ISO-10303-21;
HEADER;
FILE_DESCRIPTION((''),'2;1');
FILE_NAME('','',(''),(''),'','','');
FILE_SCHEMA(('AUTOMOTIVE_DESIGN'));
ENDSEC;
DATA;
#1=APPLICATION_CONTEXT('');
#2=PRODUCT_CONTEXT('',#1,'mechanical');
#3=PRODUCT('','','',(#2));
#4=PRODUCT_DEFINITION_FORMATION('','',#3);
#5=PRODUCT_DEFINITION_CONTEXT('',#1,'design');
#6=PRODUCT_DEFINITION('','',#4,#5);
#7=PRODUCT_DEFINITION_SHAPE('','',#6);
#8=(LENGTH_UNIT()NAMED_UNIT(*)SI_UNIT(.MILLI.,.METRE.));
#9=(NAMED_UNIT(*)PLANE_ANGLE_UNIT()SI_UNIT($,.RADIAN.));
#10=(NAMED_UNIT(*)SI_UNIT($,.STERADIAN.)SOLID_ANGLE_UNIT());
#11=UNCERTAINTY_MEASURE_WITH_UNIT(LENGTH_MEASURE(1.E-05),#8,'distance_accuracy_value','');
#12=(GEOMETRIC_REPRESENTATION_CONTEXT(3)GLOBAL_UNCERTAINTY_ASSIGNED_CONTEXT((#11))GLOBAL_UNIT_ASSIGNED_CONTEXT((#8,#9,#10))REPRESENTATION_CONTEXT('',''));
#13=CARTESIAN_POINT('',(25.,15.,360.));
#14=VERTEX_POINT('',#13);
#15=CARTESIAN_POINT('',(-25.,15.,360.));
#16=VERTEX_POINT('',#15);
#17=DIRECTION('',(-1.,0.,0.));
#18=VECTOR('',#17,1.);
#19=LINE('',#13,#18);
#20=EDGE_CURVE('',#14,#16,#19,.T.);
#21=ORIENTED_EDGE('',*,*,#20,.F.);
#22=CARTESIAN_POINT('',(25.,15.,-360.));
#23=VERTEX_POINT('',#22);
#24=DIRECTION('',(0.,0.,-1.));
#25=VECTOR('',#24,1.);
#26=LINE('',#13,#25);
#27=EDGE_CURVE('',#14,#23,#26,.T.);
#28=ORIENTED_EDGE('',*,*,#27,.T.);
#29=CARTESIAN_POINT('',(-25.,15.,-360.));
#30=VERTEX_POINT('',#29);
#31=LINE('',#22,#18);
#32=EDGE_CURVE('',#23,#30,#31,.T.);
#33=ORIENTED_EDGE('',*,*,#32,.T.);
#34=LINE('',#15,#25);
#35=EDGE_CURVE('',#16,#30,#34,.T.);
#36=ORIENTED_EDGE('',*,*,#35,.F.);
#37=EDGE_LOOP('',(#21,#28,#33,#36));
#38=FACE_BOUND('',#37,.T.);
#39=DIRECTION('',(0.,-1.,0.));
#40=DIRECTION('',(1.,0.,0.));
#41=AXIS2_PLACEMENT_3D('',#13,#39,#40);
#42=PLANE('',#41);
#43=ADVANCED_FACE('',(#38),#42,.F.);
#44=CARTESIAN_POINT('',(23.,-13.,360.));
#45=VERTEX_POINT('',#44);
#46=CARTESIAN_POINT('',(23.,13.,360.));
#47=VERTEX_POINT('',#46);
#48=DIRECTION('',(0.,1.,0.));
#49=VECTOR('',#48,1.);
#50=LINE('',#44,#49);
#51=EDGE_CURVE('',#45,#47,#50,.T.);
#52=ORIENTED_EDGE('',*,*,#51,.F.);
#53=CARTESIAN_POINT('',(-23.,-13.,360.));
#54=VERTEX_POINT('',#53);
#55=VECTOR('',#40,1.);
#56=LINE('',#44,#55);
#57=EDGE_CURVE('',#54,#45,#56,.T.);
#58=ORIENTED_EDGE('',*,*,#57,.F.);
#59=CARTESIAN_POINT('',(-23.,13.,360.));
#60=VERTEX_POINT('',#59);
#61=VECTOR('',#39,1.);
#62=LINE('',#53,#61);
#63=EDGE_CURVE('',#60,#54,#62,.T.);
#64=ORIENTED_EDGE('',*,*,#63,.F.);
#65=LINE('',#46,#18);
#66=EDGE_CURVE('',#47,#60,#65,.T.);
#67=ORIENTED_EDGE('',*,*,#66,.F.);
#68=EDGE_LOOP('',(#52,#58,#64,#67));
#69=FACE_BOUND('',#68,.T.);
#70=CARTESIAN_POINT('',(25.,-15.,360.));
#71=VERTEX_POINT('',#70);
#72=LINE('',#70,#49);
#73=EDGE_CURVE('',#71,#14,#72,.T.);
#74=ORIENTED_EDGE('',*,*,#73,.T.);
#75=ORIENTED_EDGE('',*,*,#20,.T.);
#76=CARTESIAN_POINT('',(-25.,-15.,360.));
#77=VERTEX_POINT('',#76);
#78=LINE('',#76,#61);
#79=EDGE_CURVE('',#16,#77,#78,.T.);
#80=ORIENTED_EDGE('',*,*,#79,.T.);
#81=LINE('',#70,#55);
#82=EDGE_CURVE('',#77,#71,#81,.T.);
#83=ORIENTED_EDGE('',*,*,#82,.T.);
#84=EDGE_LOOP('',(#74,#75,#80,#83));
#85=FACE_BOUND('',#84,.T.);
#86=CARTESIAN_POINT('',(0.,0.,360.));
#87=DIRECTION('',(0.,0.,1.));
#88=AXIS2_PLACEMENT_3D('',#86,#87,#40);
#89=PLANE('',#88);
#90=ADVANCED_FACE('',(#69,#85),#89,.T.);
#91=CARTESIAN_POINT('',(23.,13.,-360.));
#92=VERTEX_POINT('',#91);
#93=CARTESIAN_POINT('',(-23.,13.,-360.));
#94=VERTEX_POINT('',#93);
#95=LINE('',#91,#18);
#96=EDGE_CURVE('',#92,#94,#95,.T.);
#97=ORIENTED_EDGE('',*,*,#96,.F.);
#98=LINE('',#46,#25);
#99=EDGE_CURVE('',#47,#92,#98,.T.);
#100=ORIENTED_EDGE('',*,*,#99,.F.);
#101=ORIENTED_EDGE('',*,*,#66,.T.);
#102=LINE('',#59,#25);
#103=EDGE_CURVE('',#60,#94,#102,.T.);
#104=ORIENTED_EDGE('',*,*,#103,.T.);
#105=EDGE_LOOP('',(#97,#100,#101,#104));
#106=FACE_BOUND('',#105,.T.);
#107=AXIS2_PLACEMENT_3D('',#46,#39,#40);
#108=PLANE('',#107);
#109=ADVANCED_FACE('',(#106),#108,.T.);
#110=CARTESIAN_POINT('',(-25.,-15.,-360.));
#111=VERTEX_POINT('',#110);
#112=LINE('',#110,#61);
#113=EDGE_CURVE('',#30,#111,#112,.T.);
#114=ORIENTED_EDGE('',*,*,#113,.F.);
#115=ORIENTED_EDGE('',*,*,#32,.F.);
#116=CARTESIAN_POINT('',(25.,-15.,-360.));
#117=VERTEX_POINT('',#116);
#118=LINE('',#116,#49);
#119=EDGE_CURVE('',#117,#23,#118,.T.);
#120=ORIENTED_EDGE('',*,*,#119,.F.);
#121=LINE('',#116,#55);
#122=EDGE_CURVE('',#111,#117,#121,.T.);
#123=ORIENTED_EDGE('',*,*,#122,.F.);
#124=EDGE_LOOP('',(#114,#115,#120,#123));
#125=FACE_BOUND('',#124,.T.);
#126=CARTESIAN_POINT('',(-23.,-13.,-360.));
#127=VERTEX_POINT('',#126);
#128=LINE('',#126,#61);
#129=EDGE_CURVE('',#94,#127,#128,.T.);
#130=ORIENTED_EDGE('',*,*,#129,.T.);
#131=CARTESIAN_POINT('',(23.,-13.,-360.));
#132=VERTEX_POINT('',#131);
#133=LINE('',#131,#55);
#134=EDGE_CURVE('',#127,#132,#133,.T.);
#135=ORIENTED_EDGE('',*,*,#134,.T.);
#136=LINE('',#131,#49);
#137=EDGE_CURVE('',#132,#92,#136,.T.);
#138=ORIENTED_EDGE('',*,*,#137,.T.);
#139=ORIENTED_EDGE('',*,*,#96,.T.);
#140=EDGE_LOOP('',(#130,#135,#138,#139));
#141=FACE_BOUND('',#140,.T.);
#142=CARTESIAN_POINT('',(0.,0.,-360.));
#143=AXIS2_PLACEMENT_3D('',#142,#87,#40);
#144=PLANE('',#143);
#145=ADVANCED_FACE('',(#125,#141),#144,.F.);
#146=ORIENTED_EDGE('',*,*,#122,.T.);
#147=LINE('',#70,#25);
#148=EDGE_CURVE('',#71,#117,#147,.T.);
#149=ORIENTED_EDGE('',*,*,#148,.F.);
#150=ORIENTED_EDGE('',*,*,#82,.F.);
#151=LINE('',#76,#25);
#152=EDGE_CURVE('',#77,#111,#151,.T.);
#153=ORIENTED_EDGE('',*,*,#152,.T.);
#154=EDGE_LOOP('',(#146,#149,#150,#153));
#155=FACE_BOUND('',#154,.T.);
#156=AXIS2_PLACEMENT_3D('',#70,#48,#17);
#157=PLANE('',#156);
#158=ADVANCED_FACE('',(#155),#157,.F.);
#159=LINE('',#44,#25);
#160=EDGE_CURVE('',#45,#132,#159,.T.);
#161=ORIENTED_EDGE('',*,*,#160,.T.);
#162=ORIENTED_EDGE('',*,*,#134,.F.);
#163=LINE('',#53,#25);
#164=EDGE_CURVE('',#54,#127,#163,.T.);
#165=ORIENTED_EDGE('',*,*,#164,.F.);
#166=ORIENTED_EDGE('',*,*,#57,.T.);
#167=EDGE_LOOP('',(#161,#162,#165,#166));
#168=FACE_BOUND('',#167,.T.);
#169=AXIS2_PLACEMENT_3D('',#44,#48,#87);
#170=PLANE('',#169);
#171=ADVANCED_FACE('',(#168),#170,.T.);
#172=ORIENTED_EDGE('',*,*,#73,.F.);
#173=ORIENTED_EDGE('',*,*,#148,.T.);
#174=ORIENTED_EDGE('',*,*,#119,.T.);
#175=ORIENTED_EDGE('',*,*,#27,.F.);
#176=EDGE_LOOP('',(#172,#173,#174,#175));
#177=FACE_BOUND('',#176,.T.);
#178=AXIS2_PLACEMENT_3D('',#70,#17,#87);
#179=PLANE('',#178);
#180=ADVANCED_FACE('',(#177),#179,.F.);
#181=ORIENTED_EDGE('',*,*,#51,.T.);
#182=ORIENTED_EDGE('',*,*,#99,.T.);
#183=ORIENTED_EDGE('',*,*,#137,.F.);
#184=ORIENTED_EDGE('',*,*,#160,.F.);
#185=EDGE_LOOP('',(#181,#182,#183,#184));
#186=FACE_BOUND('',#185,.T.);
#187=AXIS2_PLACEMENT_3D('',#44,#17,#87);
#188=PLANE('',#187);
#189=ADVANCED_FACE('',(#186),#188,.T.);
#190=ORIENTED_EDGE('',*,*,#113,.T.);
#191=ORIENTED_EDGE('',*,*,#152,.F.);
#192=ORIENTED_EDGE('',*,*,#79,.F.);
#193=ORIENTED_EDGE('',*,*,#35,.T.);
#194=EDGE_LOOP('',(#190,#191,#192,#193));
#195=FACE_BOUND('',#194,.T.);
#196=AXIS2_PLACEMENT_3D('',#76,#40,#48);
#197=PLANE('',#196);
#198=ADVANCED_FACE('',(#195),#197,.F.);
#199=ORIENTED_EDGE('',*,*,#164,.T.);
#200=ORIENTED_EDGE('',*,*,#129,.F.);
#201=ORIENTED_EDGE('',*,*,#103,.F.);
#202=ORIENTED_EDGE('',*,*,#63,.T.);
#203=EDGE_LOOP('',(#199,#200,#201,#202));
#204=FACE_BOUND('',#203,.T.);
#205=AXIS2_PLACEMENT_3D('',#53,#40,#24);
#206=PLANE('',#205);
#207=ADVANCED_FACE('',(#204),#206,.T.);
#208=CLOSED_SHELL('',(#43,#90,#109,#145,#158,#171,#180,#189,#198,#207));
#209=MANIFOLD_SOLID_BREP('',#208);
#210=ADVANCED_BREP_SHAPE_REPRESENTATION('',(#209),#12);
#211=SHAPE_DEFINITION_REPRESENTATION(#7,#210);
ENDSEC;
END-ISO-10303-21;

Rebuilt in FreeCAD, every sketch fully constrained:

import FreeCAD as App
import Part
import Sketcher


def add_polygon(sketch, points):
    """Adds a closed chain of lines whose ends are joined by coincident constraints."""
    first, n = sketch.GeometryCount, len(points)
    for a, b in zip(points, points[1:] + points[:1]):
        sketch.addGeometry(Part.LineSegment(App.Vector(*a, 0), App.Vector(*b, 0)), False)
    for i in range(n):
        sketch.addConstraint(Sketcher.Constraint("Coincident", first + i, 2, first + (i + 1) % n, 1))

doc = App.newDocument("Part")
params = doc.addObject("Spreadsheet::Sheet", "Params")
for row, (alias, value) in enumerate([
    ("sketch1_width", "50 mm"),
    ("sketch1_width2", "46 mm"),
    ("sketch1_height", "30 mm"),
    ("sketch1_height2", "26 mm"),
    ("pad1_length", "720 mm"),
], start=1):
    params.set(f"A{row}", alias)
    params.set(f"B{row}", "=" + value)
    params.setAlias(f"B{row}", alias)

body = doc.addObject("PartDesign::Body", "Body")

sketch1 = doc.addObject("Sketcher::SketchObject", "Sketch")
body.addObject(sketch1)
sketch1.AttachmentSupport = (doc.XY_Plane, [""])
sketch1.MapMode = "FlatFace"
add_polygon(sketch1, [(-25, 15), (-25, -15), (25, -15), (25, 15)])
add_polygon(sketch1, [(23, -13), (-23, -13), (-23, 13), (23, 13)])
sketch1.addConstraint(Sketcher.Constraint("Vertical", 0))
sketch1.addConstraint(Sketcher.Constraint("Horizontal", 1))
sketch1.addConstraint(Sketcher.Constraint("Vertical", 2))
sketch1.addConstraint(Sketcher.Constraint("Horizontal", 3))
sketch1.addConstraint(Sketcher.Constraint("Horizontal", 4))
sketch1.addConstraint(Sketcher.Constraint("Vertical", 5))
sketch1.addConstraint(Sketcher.Constraint("Horizontal", 6))
sketch1.addConstraint(Sketcher.Constraint("Vertical", 7))
sketch1.addConstraint(Sketcher.Constraint("Symmetric", 0, 2, 2, 2, -1, 1))
sketch1.addConstraint(Sketcher.Constraint("Symmetric", 4, 2, 6, 2, -1, 1))
sketch1.addConstraint(Sketcher.Constraint("DistanceX", 1, 1, 1, 2, 50.0))
sketch1.addConstraint(Sketcher.Constraint("DistanceX", 4, 2, 4, 1, 46.0))
sketch1.addConstraint(Sketcher.Constraint("DistanceY", 0, 2, 0, 1, 30.0))
sketch1.addConstraint(Sketcher.Constraint("DistanceY", 5, 1, 5, 2, 26.0))
sketch1.setExpression("Constraints[18]", "Params.sketch1_width")
sketch1.setExpression("Constraints[19]", "Params.sketch1_width2")
sketch1.setExpression("Constraints[20]", "Params.sketch1_height")
sketch1.setExpression("Constraints[21]", "Params.sketch1_height2")
pad1 = doc.addObject("PartDesign::Pad", "Pad")
body.addObject(pad1)
pad1.Profile = sketch1
pad1.setExpression("Length", "Params.pad1_length")
pad1.Midplane = True

doc.recompute()
